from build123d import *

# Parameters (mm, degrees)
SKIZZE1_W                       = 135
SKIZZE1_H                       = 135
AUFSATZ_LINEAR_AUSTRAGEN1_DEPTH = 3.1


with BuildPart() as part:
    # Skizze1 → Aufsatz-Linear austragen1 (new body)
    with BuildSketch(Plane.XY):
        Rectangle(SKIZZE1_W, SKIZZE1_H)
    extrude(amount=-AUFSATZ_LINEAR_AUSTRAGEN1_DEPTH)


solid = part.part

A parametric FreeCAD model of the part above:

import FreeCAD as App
import Part
import Sketcher
Q = App.Units.Quantity


def add_polygon(sketch, points):
    """Adds a closed chain of lines whose ends are joined by coincident constraints."""
    first, n = sketch.GeometryCount, len(points)
    for a, b in zip(points, points[1:] + points[:1]):
        sketch.addGeometry(Part.LineSegment(App.Vector(*a, 0), App.Vector(*b, 0)), False)
    for i in range(n):
        sketch.addConstraint(Sketcher.Constraint("Coincident", first + i, 2, first + (i + 1) % n, 1))

doc = App.newDocument("Part")
params = doc.addObject("Spreadsheet::Sheet", "Params")
for row, (alias, value) in enumerate([
    ("sketch1_width", "135 mm"),
    ("pad1_length", "3.1 mm"),
], start=1):
    params.set(f"A{row}", alias)
    params.set(f"B{row}", "=" + value)
    params.setAlias(f"B{row}", alias)

body = doc.addObject("PartDesign::Body", "Body")

# Sketch on XY plane
sketch1 = body.newObject("Sketcher::SketchObject", "Sketch")
sketch1.AttachmentSupport = (doc.getObject("XY_Plane"), [""])
sketch1.MapMode = "FlatFace"
add_polygon(sketch1, [(-68, 68), (-68, -68), (68, -68), (68, 68)])  # lines 0-3
sketch1.addConstraint(Sketcher.Constraint("Vertical", 0))
sketch1.addConstraint(Sketcher.Constraint("Horizontal", 1))
sketch1.addConstraint(Sketcher.Constraint("Vertical", 2))
sketch1.addConstraint(Sketcher.Constraint("Horizontal", 3))
sketch1.addConstraint(Sketcher.Constraint("Symmetric", 0, 2, 2, 2, -1, 1))
sketch1.addConstraint(Sketcher.Constraint("Equal", 3, 0))
sketch1.addConstraint(Sketcher.Constraint("DistanceX", 1, 1, 1, 2, Q("135 mm")))
sketch1.setExpression("Constraints[10]", "Params.sketch1_width")
pad1 = body.newObject("PartDesign::Pad", "Pad")
pad1.Profile = sketch1
pad1.setExpression("Length", "Params.pad1_length")
pad1.Reversed = True

doc.recompute()
